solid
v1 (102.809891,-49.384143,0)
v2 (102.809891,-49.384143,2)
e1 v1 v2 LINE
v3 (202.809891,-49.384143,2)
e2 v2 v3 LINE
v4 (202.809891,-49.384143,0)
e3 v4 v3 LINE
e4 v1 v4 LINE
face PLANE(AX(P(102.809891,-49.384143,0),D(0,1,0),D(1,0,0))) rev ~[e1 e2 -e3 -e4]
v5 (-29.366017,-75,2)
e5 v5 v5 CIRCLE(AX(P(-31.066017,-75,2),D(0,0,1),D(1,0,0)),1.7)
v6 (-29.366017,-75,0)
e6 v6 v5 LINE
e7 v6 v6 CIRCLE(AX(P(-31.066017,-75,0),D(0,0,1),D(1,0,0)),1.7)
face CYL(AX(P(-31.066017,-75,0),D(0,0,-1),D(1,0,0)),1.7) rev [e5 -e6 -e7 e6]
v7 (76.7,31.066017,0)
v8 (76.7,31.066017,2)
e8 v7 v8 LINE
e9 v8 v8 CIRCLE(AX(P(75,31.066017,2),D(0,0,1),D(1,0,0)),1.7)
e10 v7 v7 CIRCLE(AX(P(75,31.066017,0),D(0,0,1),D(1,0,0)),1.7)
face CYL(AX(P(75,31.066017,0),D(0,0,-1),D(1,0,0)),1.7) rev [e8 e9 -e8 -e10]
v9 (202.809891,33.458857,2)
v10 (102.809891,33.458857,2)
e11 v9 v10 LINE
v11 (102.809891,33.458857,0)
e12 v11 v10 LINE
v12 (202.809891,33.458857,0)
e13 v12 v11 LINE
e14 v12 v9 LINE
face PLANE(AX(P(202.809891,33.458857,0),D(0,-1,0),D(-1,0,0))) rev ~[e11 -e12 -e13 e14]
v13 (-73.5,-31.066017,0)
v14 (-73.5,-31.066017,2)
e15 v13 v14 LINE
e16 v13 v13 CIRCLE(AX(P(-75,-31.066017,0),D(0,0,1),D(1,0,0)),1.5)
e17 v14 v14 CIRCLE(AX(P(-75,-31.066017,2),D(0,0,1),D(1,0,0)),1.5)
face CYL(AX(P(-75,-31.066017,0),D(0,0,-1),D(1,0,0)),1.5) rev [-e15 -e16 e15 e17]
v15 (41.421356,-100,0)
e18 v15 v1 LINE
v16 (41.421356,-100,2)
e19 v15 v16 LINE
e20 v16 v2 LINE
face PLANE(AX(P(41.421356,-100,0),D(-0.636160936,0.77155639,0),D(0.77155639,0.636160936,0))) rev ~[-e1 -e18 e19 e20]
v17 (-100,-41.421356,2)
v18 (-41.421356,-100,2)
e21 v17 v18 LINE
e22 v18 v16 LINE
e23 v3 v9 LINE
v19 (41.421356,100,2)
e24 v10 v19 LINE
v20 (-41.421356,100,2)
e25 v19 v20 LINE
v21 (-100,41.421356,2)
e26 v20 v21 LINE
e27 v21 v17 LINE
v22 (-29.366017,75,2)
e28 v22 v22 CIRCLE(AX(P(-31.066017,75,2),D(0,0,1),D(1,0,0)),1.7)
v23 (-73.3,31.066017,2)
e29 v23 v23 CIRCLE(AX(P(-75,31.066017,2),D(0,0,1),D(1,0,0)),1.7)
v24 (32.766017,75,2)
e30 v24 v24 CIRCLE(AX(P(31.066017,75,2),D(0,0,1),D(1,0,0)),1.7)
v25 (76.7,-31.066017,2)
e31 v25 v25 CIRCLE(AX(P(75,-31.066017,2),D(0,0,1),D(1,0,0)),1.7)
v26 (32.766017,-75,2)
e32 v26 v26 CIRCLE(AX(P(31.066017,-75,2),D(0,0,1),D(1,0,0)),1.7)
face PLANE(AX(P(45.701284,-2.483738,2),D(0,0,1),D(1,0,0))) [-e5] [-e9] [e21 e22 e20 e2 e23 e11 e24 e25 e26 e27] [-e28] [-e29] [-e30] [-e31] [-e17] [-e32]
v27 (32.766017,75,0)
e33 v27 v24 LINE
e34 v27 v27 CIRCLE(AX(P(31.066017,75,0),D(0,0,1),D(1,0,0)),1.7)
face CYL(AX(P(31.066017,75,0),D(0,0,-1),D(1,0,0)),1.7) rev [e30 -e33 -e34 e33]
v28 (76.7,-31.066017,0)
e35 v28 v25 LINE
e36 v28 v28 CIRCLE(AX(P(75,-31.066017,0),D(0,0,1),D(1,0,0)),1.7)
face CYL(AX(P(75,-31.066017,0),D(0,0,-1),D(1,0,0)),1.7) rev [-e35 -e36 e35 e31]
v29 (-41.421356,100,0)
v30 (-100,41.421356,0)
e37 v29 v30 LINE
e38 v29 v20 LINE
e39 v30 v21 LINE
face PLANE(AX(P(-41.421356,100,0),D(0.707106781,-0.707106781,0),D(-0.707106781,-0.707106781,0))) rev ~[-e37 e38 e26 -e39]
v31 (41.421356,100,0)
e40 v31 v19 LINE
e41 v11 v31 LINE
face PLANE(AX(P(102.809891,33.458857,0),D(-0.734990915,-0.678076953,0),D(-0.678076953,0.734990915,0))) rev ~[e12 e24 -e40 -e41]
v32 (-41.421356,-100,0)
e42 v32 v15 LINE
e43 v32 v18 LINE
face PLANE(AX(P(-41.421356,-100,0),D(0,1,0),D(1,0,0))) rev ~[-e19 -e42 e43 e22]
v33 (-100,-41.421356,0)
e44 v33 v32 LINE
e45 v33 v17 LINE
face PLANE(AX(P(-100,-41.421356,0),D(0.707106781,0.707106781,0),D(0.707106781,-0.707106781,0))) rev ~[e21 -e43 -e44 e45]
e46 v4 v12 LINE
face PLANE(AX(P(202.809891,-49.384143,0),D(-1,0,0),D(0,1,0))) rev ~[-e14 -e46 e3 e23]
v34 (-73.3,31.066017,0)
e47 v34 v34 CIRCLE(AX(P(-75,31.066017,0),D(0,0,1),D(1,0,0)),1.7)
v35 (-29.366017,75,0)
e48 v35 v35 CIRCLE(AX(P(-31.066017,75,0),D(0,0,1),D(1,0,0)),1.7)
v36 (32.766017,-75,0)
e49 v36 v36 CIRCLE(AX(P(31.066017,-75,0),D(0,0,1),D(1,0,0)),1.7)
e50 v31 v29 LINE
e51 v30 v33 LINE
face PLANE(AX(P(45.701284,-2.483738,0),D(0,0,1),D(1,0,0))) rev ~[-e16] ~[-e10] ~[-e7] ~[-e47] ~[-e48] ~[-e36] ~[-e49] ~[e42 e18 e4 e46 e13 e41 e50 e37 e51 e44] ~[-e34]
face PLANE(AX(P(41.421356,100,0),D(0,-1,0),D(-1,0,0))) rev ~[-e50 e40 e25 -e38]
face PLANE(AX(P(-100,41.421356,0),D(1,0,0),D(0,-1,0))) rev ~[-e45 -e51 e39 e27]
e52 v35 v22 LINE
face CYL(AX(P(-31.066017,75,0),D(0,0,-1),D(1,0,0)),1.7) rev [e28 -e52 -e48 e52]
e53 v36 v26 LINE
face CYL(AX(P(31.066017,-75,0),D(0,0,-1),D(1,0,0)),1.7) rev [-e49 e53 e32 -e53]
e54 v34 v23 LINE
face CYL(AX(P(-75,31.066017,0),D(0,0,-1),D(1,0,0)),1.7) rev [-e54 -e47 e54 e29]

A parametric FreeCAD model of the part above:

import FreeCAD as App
import Part
import Sketcher
from FreeCAD import Vector
Q = App.Units.Quantity

doc = App.newDocument("Part")
body = doc.addObject("PartDesign::Body", "Body")

sketch1 = doc.addObject("Sketcher::SketchObject", "Sketch")
body.addObject(sketch1)
sketch1.AttachmentSupport = (doc.XY_Plane, [""])
sketch1.MapMode = "FlatFace"
sketch1.addGeometry(Part.LineSegment(Vector(41.4, 100, 0), Vector(-41.4, 100, 0)), False)
sketch1.addGeometry(Part.LineSegment(Vector(-41.4, 100, 0), Vector(-100, 41.4, 0)), False)
sketch1.addGeometry(Part.LineSegment(Vector(-100, 41.4, 0), Vector(-100, -41.4, 0)), False)
sketch1.addGeometry(Part.LineSegment(Vector(-100, -41.4, 0), Vector(-41.4, -100, 0)), False)
sketch1.addGeometry(Part.LineSegment(Vector(-41.4, -100, 0), Vector(41.4, -100, 0)), False)
sketch1.addGeometry(Part.LineSegment(Vector(41.4, -100, 0), Vector(102.8, -49.4, 0)), False)
sketch1.addGeometry(Part.LineSegment(Vector(102.8, -49.4, 0), Vector(202.8, -49.4, 0)), False)
sketch1.addGeometry(Part.LineSegment(Vector(202.8, -49.4, 0), Vector(202.8, 33.5, 0)), False)
sketch1.addGeometry(Part.LineSegment(Vector(202.8, 33.5, 0), Vector(102.8, 33.5, 0)), False)
sketch1.addGeometry(Part.LineSegment(Vector(102.8, 33.5, 0), Vector(41.4, 100, 0)), False)
sketch1.addGeometry(Part.Circle(Vector(-31.1, -75, 0), Vector(0, 0, 1), 1.7), False)
sketch1.addGeometry(Part.Circle(Vector(-75, -31.1, 0), Vector(0, 0, 1), 1.5), False)
sketch1.addGeometry(Part.Circle(Vector(31.1, -75, 0), Vector(0, 0, 1), 1.7), False)
sketch1.addGeometry(Part.Circle(Vector(75, -31.1, 0), Vector(0, 0, 1), 1.7), False)
sketch1.addGeometry(Part.Circle(Vector(-75, 31.1, 0), Vector(0, 0, 1), 1.7), False)
sketch1.addGeometry(Part.Circle(Vector(-31.1, 75, 0), Vector(0, 0, 1), 1.7), False)
sketch1.addGeometry(Part.Circle(Vector(75, 31.1, 0), Vector(0, 0, 1), 1.7), False)
sketch1.addGeometry(Part.Circle(Vector(31.1, 75, 0), Vector(0, 0, 1), 1.7), False)
sketch1.addConstraint(Sketcher.Constraint("Coincident", 0, 2, 1, 1))
sketch1.addConstraint(Sketcher.Constraint("Coincident", 1, 2, 2, 1))
sketch1.addConstraint(Sketcher.Constraint("Coincident", 2, 2, 3, 1))
sketch1.addConstraint(Sketcher.Constraint("Coincident", 3, 2, 4, 1))
sketch1.addConstraint(Sketcher.Constraint("Coincident", 4, 2, 5, 1))
sketch1.addConstraint(Sketcher.Constraint("Coincident", 5, 2, 6, 1))
sketch1.addConstraint(Sketcher.Constraint("Coincident", 6, 2, 7, 1))
sketch1.addConstraint(Sketcher.Constraint("Coincident", 7, 2, 8, 1))
sketch1.addConstraint(Sketcher.Constraint("Coincident", 8, 2, 9, 1))
sketch1.addConstraint(Sketcher.Constraint("Coincident", 9, 2, 0, 1))
sketch1.addConstraint(Sketcher.Constraint("Horizontal", 0))
sketch1.addConstraint(Sketcher.Constraint("Vertical", 2))
sketch1.addConstraint(Sketcher.Constraint("Horizontal", 4))
sketch1.addConstraint(Sketcher.Constraint("Horizontal", 6))
sketch1.addConstraint(Sketcher.Constraint("Vertical", 7))
sketch1.addConstraint(Sketcher.Constraint("Horizontal", 8))
sketch1.addConstraint(Sketcher.Constraint("Equal", 10, 12))
sketch1.addConstraint(Sketcher.Constraint("Equal", 12, 13))
sketch1.addConstraint(Sketcher.Constraint("Equal", 13, 14))
sketch1.addConstraint(Sketcher.Constraint("Equal", 14, 15))
sketch1.addConstraint(Sketcher.Constraint("Equal", 15, 16))
sketch1.addConstraint(Sketcher.Constraint("Equal", 16, 17))
sketch1.addConstraint(Sketcher.Constraint("Symmetric", 13, 3, 14, 3, -1, 1))
sketch1.addConstraint(Sketcher.Constraint("Symmetric", 12, 3, 15, 3, -1, 1))
sketch1.addConstraint(Sketcher.Constraint("Symmetric", 11, 3, 16, 3, -1, 1))
sketch1.addConstraint(Sketcher.Constraint("Symmetric", 10, 3, 17, 3, -1, 1))
sketch1.addConstraint(Sketcher.Constraint("Symmetric", 0, 2, 4, 2, -1, 1))
sketch1.addConstraint(Sketcher.Constraint("Symmetric", 10, 3, 12, 3, -2))
sketch1.addConstraint(Sketcher.Constraint("Symmetric", 11, 3, 13, 3, -2))
sketch1.addConstraint(Sketcher.Constraint("Perpendicular", 1, 3))
sketch1.addConstraint(Sketcher.Constraint("Vertical", 0, 2, 3, 2))
sketch1.addConstraint(Sketcher.Constraint("Vertical", 5, 2, 8, 2))
sketch1.addConstraint(Sketcher.Constraint("Vertical", 4, 2, 9, 2))
sketch1.addConstraint(Sketcher.Constraint("Equal", 4, 2))
sketch1.addConstraint(Sketcher.Constraint("Equal", 1, 3))
sketch1.addConstraint(Sketcher.Constraint("Diameter", 11, Q("3 mm")))
sketch1.addConstraint(Sketcher.Constraint("Diameter", 10, Q("3.4 mm")))
sketch1.addConstraint(Sketcher.Constraint("DistanceX", 6, 1, 6, 2, Q("100 mm")))
sketch1.addConstraint(Sketcher.Constraint("DistanceY", 10, 3, -1, 1, Q("75 mm")))
sketch1.addConstraint(Sketcher.Constraint("DistanceX", 11, 3, -1, 1, Q("75 mm")))
sketch1.addConstraint(Sketcher.Constraint("DistanceY", -1, 1, 0, 2, Q("100 mm")))
sketch1.addConstraint(Sketcher.Constraint("DistanceY", 7, 1, 7, 2, Q("82.843 mm")))
sketch1.addConstraint(Sketcher.Constraint("DistanceX", 0, 2, 0, 1, Q("82.842712 mm")))
sketch1.addConstraint(Sketcher.Constraint("DistanceX", -1, 1, 5, 2, Q("102.809891 mm")))
sketch1.addConstraint(Sketcher.Constraint("DistanceX", 0, 2, 15, 3, Q("10.355339 mm")))
sketch1.addConstraint(Sketcher.Constraint("DistanceY", 14, 3, 1, 2, Q("10.355339 mm")))
sketch1.addConstraint(Sketcher.Constraint("DistanceY", 5, 2, 16, 3, Q("80.45016 mm")))
pad1 = doc.addObject("PartDesign::Pad", "Pad")
body.addObject(pad1)
pad1.Profile = sketch1
pad1.Length = 2

doc.recompute()
